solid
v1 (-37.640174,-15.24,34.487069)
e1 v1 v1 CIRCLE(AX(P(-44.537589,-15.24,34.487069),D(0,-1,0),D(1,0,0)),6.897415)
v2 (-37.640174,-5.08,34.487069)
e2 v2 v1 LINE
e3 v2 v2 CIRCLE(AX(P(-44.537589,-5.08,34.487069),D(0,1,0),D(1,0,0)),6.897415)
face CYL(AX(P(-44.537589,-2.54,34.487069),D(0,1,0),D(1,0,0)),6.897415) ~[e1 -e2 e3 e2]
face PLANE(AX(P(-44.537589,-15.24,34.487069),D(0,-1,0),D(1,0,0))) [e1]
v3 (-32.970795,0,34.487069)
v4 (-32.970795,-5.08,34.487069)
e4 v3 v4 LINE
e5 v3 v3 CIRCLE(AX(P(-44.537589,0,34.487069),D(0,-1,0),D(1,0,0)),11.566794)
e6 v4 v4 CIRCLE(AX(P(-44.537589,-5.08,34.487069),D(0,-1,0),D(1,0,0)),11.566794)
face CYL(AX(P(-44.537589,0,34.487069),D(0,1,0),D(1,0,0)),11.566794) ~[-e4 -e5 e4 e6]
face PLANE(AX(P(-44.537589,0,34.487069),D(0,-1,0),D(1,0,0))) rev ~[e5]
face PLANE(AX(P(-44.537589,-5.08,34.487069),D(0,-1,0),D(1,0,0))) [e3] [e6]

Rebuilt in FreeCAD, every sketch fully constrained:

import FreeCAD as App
import Part
import Sketcher
from FreeCAD import Vector
Q = App.Units.Quantity

doc = App.newDocument("Part")
body = doc.addObject("PartDesign::Body", "Body")

sketch1 = body.newObject("Sketcher::SketchObject", "Sketch")
sketch1.AttachmentSupport = (doc.getObject("XZ_Plane"), [""])
sketch1.MapMode = "FlatFace"
sketch1.addGeometry(Part.Circle(Vector(-45, 34, 0), Vector(0, 0, 1), 12), False)
sketch1.addConstraint([
    Sketcher.Constraint("Diameter", 0, 23.133588),
    Sketcher.Constraint("DistanceX", 0, 3, -1, 1, 44.537589),
    Sketcher.Constraint("DistanceY", -1, 1, 0, 3, 34.487069),
])
pad1 = body.newObject("PartDesign::Pad", "Pad")
pad1.Profile = sketch1
pad1.Length = Q("0.2 in")

sketch2 = body.newObject("Sketcher::SketchObject", "Sketch001")
sketch2.AttachmentSupport = (doc.getObject("XZ_Plane"), [""])
sketch2.MapMode = "FlatFace"
sketch2.AttachmentOffset = App.Placement(Vector(0, 0, 0.2 * 25.4), App.Rotation())
sketch2.addGeometry(Part.Circle(Vector(-45, 34, 0), Vector(0, 0, 1), 6), False)
sketch2.addConstraint([
    Sketcher.Constraint("Diameter", 0, 12.990434),
    Sketcher.Constraint("DistanceX", 0, 3, -1, 1, 44.537589),
    Sketcher.Constraint("DistanceY", -1, 1, 0, 3, 34.487069),
])
pocket1 = body.newObject("PartDesign::Pocket", "Pocket")
pocket1.Profile = sketch2
pocket1.Length = Q("0.1 in")

sketch3 = body.newObject("Sketcher::SketchObject", "Sketch002")
sketch3.AttachmentSupport = (doc.getObject("XZ_Plane"), [""])
sketch3.MapMode = "FlatFace"
sketch3.AttachmentOffset = App.Placement(Vector(0, 0, 0.1 * 25.4), App.Rotation())
sketch3.addGeometry(Part.Circle(Vector(-45, 34, 0), Vector(0, 0, 1), 7), False)
sketch3.addConstraint([
    Sketcher.Constraint("Diameter", 0, 13.79483),
    Sketcher.Constraint("DistanceX", 0, 3, -1, 1, 44.537589),
    Sketcher.Constraint("DistanceY", -1, 1, 0, 3, 34.487069),
])
pad2 = body.newObject("PartDesign::Pad", "Pad001")
pad2.Profile = sketch3
pad2.Length = Q("0.5 in")

doc.recompute()
